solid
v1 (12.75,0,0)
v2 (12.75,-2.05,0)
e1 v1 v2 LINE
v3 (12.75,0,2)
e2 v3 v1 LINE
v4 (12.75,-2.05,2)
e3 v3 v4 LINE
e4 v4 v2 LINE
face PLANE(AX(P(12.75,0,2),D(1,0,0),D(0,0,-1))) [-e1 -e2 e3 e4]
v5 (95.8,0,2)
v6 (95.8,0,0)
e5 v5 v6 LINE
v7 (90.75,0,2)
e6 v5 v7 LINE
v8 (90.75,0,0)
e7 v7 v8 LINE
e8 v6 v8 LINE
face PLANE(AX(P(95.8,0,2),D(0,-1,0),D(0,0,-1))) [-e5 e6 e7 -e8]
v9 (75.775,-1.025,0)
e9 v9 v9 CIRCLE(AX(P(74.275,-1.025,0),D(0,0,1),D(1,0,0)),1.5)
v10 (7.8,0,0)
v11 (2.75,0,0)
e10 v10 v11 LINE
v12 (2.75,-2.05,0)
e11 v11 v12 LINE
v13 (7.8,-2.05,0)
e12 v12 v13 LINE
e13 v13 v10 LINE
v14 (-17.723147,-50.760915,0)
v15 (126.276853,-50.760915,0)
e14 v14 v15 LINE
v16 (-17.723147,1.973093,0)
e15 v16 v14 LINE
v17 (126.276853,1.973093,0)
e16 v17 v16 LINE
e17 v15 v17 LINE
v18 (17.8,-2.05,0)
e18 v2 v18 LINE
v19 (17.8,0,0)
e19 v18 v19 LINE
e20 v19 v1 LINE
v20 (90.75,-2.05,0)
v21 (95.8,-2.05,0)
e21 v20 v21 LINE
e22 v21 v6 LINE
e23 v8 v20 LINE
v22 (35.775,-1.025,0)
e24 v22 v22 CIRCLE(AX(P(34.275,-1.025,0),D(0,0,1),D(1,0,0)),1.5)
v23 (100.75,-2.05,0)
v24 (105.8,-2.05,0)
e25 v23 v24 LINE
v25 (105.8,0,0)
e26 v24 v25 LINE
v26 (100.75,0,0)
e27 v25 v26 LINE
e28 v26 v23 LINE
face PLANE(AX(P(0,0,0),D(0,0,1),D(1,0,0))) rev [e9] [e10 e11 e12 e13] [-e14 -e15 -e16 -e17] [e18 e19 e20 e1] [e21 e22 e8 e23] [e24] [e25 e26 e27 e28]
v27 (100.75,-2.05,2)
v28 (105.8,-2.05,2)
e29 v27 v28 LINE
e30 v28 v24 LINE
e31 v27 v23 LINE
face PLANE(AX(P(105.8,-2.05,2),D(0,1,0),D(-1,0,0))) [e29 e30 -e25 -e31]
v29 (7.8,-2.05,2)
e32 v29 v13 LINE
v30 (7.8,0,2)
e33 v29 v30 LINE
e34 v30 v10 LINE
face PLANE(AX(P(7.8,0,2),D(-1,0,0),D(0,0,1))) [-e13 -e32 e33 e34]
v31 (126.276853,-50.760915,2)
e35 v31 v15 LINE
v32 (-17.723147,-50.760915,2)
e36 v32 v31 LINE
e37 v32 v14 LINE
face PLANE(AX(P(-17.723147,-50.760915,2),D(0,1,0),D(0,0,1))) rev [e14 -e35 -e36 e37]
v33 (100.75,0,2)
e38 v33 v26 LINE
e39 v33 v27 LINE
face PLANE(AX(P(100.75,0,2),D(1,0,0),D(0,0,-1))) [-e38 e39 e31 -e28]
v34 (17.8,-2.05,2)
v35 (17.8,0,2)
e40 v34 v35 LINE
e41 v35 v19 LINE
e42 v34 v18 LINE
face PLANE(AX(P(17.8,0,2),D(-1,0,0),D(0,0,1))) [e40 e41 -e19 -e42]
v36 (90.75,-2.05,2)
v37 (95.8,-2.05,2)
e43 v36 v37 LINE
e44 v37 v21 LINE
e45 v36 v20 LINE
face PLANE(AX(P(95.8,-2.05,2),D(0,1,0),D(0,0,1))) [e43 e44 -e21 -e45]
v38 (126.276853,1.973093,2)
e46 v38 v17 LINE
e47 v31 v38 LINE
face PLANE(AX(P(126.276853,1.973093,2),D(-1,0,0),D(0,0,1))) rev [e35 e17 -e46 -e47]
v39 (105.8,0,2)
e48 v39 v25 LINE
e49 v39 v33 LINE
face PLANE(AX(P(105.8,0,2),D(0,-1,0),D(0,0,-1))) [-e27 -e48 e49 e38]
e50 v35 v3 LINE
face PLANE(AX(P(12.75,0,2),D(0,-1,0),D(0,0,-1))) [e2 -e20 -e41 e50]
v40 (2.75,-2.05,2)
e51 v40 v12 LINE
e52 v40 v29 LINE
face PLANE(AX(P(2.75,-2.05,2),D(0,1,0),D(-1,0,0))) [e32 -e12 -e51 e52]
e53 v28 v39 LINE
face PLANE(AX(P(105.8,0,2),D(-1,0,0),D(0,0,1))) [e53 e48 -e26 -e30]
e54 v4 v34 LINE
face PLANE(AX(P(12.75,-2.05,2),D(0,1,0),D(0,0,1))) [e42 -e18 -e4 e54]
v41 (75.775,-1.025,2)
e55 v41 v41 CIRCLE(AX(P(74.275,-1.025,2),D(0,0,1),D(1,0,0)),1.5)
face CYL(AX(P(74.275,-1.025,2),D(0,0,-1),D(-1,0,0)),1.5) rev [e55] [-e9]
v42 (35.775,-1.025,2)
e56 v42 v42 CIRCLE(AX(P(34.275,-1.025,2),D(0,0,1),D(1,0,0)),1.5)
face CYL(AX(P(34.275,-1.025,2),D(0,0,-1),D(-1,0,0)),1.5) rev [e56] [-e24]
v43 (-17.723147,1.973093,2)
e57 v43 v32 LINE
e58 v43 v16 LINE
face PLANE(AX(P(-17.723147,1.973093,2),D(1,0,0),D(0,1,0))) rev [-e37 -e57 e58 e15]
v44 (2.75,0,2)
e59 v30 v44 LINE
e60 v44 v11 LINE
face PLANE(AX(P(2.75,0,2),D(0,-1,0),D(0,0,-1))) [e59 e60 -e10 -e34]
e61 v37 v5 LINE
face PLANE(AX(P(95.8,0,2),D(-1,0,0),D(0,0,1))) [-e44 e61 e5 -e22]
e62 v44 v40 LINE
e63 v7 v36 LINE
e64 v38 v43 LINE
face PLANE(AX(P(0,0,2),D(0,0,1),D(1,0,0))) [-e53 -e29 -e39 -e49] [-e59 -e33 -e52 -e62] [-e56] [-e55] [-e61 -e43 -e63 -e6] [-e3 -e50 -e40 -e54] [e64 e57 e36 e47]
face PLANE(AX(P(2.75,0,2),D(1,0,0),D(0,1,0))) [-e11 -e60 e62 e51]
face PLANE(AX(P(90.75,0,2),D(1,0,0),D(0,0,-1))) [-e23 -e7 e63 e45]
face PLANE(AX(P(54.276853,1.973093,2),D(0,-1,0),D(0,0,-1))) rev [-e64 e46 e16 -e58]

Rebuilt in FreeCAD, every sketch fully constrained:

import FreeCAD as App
import Part
import Sketcher

V = App.Vector
Q = App.Units.Quantity

doc = App.newDocument("Part")
params = doc.addObject("Spreadsheet::Sheet", "Params")
for row, (alias, value) in enumerate([
    ("sketch1_diameter", "3 mm"),
    ("sketch1_width", "144 mm"),
    ("sketch1_width2", "5.05 mm"),
    ("sketch1_height", "2.05 mm"),
    ("pad1_length", "2 mm"),
], start=1):
    params.set(f"A{row}", alias)
    params.set(f"B{row}", "=" + value)
    params.setAlias(f"B{row}", alias)

body = doc.addObject("PartDesign::Body", "Body")

# Sketch on XY plane
sketch1 = doc.addObject("Sketcher::SketchObject", "Sketch")
body.addObject(sketch1)
sketch1.AttachmentSupport = (doc.XY_Plane, [""])
sketch1.MapMode = "FlatFace"
sketch1.addGeometry([
    Part.LineSegment(V(-17.723147, 1.973093, 0), V(-17.723147, -50.760915, 0)),  # 0
    Part.LineSegment(V(-17.723147, -50.760915, 0), V(126.276853, -50.760915, 0)),  # 1
    Part.LineSegment(V(126.276853, -50.760915, 0), V(126.276853, 1.973093, 0)),  # 2
    Part.LineSegment(V(126.276853, 1.973093, 0), V(-17.723147, 1.973093, 0)),  # 3
    Part.LineSegment(V(7.8, -2.05, 0), V(2.75, -2.05, 0)),  # 4
    Part.LineSegment(V(2.75, -2.05, 0), V(2.75, 0, 0)),  # 5
    Part.LineSegment(V(2.75, 0, 0), V(7.8, 0, 0)),  # 6
    Part.LineSegment(V(7.8, 0, 0), V(7.8, -2.05, 0)),  # 7
    Part.LineSegment(V(17.8, -2.05, 0), V(12.75, -2.05, 0)),  # 8
    Part.LineSegment(V(12.75, -2.05, 0), V(12.75, 0, 0)),  # 9
    Part.LineSegment(V(12.75, 0, 0), V(17.8, 0, 0)),  # 10
    Part.LineSegment(V(17.8, 0, 0), V(17.8, -2.05, 0)),  # 11
    Part.Circle(V(34.275, -1.025, 0), V(0, 0, 1), 1.5),  # 12
    Part.Circle(V(74.275, -1.025, 0), V(0, 0, 1), 1.5),  # 13
    Part.LineSegment(V(95.8, -2.05, 0), V(90.75, -2.05, 0)),  # 14
    Part.LineSegment(V(90.75, -2.05, 0), V(90.75, 0, 0)),  # 15
    Part.LineSegment(V(90.75, 0, 0), V(95.8, 0, 0)),  # 16
    Part.LineSegment(V(95.8, 0, 0), V(95.8, -2.05, 0)),  # 17
    Part.LineSegment(V(105.8, -2.05, 0), V(100.75, -2.05, 0)),  # 18
    Part.LineSegment(V(100.75, -2.05, 0), V(100.75, 0, 0)),  # 19
    Part.LineSegment(V(100.75, 0, 0), V(105.8, 0, 0)),  # 20
    Part.LineSegment(V(105.8, 0, 0), V(105.8, -2.05, 0)),  # 21
], False)
sketch1.addConstraint([
    Sketcher.Constraint("Coincident", 0, 2, 1, 1),
    Sketcher.Constraint("Coincident", 1, 2, 2, 1),
    Sketcher.Constraint("Coincident", 2, 2, 3, 1),
    Sketcher.Constraint("Coincident", 3, 2, 0, 1),
    Sketcher.Constraint("Coincident", 4, 2, 5, 1),
    Sketcher.Constraint("Coincident", 5, 2, 6, 1),
    Sketcher.Constraint("Coincident", 6, 2, 7, 1),
    Sketcher.Constraint("Coincident", 7, 2, 4, 1),
    Sketcher.Constraint("Coincident", 8, 2, 9, 1),
    Sketcher.Constraint("Coincident", 9, 2, 10, 1),
    Sketcher.Constraint("Coincident", 10, 2, 11, 1),
    Sketcher.Constraint("Coincident", 11, 2, 8, 1),
    Sketcher.Constraint("Coincident", 14, 2, 15, 1),
    Sketcher.Constraint("Coincident", 15, 2, 16, 1),
    Sketcher.Constraint("Coincident", 16, 2, 17, 1),
    Sketcher.Constraint("Coincident", 17, 2, 14, 1),
    Sketcher.Constraint("Coincident", 18, 2, 19, 1),
    Sketcher.Constraint("Coincident", 19, 2, 20, 1),
    Sketcher.Constraint("Coincident", 20, 2, 21, 1),
    Sketcher.Constraint("Coincident", 21, 2, 18, 1),
    Sketcher.Constraint("Vertical", 0),
    Sketcher.Constraint("Horizontal", 1),
    Sketcher.Constraint("Vertical", 2),
    Sketcher.Constraint("Horizontal", 3),
    Sketcher.Constraint("Horizontal", 4),
    Sketcher.Constraint("Vertical", 5),
    Sketcher.Constraint("Horizontal", 6),
    Sketcher.Constraint("Vertical", 7),
    Sketcher.Constraint("Horizontal", 8),
    Sketcher.Constraint("Vertical", 9),
    Sketcher.Constraint("Horizontal", 10),
    Sketcher.Constraint("Vertical", 11),
    Sketcher.Constraint("Horizontal", 14),
    Sketcher.Constraint("Vertical", 15),
    Sketcher.Constraint("Horizontal", 16),
    Sketcher.Constraint("Vertical", 17),
    Sketcher.Constraint("Horizontal", 18),
    Sketcher.Constraint("Vertical", 19),
    Sketcher.Constraint("Horizontal", 20),
    Sketcher.Constraint("Vertical", 21),
    Sketcher.Constraint("Equal", 12, 13),
    Sketcher.Constraint("PointOnObject", 5, 2, -1),
    Sketcher.Constraint("PointOnObject", 9, 2, -1),
    Sketcher.Constraint("PointOnObject", 15, 2, -1),
    Sketcher.Constraint("PointOnObject", 19, 2, -1),
    Sketcher.Constraint("Horizontal", 12, 3, 13, 3),
    Sketcher.Constraint("Horizontal", 7, 2, 8, 2),
    Sketcher.Constraint("Horizontal", 11, 2, 14, 2),
    Sketcher.Constraint("Horizontal", 17, 2, 18, 2),
    Sketcher.Constraint("Equal", 6, 8),
    Sketcher.Constraint("Equal", 10, 14),
    Sketcher.Constraint("Equal", 16, 18),
    Sketcher.Constraint("Diameter", 12, Q("3 mm")),
    Sketcher.Constraint("DistanceX", 1, 1, 1, 2, Q("144 mm")),
    Sketcher.Constraint("DistanceX", 12, 3, 13, 3, Q("40 mm")),
    Sketcher.Constraint("DistanceX", 4, 2, 8, 2, Q("10 mm")),
    Sketcher.Constraint("DistanceX", 14, 2, 18, 2, Q("10 mm")),
    Sketcher.Constraint("DistanceX", 4, 2, 4, 1, Q("5.05 mm")),
    Sketcher.Constraint("DistanceY", 5, 1, 5, 2, Q("2.05 mm")),
    Sketcher.Constraint("DistanceX", -1, 1, 6, 2, Q("7.8 mm")),
    Sketcher.Constraint("DistanceX", -1, 1, 16, 2, Q("95.8 mm")),
    Sketcher.Constraint("DistanceX", -1, 1, 12, 3, Q("34.275 mm")),
    Sketcher.Constraint("DistanceY", 12, 3, -1, 1, Q("1.025 mm")),
    Sketcher.Constraint("DistanceY", 0, 2, 0, 1, Q("52.734007 mm")),
    Sketcher.Constraint("DistanceX", 0, 2, -1, 1, Q("17.723147 mm")),
    Sketcher.Constraint("DistanceY", 0, 2, -1, 1, Q("50.760915 mm")),
])
sketch1.setExpression("Constraints[52]", "Params.sketch1_diameter")
sketch1.setExpression("Constraints[53]", "Params.sketch1_width")
sketch1.setExpression("Constraints[57]", "Params.sketch1_width2")
sketch1.setExpression("Constraints[58]", "Params.sketch1_height")
pad1 = doc.addObject("PartDesign::Pad", "Pad")
body.addObject(pad1)
pad1.Profile = sketch1
pad1.setExpression("Length", "Params.pad1_length")

doc.recompute()
